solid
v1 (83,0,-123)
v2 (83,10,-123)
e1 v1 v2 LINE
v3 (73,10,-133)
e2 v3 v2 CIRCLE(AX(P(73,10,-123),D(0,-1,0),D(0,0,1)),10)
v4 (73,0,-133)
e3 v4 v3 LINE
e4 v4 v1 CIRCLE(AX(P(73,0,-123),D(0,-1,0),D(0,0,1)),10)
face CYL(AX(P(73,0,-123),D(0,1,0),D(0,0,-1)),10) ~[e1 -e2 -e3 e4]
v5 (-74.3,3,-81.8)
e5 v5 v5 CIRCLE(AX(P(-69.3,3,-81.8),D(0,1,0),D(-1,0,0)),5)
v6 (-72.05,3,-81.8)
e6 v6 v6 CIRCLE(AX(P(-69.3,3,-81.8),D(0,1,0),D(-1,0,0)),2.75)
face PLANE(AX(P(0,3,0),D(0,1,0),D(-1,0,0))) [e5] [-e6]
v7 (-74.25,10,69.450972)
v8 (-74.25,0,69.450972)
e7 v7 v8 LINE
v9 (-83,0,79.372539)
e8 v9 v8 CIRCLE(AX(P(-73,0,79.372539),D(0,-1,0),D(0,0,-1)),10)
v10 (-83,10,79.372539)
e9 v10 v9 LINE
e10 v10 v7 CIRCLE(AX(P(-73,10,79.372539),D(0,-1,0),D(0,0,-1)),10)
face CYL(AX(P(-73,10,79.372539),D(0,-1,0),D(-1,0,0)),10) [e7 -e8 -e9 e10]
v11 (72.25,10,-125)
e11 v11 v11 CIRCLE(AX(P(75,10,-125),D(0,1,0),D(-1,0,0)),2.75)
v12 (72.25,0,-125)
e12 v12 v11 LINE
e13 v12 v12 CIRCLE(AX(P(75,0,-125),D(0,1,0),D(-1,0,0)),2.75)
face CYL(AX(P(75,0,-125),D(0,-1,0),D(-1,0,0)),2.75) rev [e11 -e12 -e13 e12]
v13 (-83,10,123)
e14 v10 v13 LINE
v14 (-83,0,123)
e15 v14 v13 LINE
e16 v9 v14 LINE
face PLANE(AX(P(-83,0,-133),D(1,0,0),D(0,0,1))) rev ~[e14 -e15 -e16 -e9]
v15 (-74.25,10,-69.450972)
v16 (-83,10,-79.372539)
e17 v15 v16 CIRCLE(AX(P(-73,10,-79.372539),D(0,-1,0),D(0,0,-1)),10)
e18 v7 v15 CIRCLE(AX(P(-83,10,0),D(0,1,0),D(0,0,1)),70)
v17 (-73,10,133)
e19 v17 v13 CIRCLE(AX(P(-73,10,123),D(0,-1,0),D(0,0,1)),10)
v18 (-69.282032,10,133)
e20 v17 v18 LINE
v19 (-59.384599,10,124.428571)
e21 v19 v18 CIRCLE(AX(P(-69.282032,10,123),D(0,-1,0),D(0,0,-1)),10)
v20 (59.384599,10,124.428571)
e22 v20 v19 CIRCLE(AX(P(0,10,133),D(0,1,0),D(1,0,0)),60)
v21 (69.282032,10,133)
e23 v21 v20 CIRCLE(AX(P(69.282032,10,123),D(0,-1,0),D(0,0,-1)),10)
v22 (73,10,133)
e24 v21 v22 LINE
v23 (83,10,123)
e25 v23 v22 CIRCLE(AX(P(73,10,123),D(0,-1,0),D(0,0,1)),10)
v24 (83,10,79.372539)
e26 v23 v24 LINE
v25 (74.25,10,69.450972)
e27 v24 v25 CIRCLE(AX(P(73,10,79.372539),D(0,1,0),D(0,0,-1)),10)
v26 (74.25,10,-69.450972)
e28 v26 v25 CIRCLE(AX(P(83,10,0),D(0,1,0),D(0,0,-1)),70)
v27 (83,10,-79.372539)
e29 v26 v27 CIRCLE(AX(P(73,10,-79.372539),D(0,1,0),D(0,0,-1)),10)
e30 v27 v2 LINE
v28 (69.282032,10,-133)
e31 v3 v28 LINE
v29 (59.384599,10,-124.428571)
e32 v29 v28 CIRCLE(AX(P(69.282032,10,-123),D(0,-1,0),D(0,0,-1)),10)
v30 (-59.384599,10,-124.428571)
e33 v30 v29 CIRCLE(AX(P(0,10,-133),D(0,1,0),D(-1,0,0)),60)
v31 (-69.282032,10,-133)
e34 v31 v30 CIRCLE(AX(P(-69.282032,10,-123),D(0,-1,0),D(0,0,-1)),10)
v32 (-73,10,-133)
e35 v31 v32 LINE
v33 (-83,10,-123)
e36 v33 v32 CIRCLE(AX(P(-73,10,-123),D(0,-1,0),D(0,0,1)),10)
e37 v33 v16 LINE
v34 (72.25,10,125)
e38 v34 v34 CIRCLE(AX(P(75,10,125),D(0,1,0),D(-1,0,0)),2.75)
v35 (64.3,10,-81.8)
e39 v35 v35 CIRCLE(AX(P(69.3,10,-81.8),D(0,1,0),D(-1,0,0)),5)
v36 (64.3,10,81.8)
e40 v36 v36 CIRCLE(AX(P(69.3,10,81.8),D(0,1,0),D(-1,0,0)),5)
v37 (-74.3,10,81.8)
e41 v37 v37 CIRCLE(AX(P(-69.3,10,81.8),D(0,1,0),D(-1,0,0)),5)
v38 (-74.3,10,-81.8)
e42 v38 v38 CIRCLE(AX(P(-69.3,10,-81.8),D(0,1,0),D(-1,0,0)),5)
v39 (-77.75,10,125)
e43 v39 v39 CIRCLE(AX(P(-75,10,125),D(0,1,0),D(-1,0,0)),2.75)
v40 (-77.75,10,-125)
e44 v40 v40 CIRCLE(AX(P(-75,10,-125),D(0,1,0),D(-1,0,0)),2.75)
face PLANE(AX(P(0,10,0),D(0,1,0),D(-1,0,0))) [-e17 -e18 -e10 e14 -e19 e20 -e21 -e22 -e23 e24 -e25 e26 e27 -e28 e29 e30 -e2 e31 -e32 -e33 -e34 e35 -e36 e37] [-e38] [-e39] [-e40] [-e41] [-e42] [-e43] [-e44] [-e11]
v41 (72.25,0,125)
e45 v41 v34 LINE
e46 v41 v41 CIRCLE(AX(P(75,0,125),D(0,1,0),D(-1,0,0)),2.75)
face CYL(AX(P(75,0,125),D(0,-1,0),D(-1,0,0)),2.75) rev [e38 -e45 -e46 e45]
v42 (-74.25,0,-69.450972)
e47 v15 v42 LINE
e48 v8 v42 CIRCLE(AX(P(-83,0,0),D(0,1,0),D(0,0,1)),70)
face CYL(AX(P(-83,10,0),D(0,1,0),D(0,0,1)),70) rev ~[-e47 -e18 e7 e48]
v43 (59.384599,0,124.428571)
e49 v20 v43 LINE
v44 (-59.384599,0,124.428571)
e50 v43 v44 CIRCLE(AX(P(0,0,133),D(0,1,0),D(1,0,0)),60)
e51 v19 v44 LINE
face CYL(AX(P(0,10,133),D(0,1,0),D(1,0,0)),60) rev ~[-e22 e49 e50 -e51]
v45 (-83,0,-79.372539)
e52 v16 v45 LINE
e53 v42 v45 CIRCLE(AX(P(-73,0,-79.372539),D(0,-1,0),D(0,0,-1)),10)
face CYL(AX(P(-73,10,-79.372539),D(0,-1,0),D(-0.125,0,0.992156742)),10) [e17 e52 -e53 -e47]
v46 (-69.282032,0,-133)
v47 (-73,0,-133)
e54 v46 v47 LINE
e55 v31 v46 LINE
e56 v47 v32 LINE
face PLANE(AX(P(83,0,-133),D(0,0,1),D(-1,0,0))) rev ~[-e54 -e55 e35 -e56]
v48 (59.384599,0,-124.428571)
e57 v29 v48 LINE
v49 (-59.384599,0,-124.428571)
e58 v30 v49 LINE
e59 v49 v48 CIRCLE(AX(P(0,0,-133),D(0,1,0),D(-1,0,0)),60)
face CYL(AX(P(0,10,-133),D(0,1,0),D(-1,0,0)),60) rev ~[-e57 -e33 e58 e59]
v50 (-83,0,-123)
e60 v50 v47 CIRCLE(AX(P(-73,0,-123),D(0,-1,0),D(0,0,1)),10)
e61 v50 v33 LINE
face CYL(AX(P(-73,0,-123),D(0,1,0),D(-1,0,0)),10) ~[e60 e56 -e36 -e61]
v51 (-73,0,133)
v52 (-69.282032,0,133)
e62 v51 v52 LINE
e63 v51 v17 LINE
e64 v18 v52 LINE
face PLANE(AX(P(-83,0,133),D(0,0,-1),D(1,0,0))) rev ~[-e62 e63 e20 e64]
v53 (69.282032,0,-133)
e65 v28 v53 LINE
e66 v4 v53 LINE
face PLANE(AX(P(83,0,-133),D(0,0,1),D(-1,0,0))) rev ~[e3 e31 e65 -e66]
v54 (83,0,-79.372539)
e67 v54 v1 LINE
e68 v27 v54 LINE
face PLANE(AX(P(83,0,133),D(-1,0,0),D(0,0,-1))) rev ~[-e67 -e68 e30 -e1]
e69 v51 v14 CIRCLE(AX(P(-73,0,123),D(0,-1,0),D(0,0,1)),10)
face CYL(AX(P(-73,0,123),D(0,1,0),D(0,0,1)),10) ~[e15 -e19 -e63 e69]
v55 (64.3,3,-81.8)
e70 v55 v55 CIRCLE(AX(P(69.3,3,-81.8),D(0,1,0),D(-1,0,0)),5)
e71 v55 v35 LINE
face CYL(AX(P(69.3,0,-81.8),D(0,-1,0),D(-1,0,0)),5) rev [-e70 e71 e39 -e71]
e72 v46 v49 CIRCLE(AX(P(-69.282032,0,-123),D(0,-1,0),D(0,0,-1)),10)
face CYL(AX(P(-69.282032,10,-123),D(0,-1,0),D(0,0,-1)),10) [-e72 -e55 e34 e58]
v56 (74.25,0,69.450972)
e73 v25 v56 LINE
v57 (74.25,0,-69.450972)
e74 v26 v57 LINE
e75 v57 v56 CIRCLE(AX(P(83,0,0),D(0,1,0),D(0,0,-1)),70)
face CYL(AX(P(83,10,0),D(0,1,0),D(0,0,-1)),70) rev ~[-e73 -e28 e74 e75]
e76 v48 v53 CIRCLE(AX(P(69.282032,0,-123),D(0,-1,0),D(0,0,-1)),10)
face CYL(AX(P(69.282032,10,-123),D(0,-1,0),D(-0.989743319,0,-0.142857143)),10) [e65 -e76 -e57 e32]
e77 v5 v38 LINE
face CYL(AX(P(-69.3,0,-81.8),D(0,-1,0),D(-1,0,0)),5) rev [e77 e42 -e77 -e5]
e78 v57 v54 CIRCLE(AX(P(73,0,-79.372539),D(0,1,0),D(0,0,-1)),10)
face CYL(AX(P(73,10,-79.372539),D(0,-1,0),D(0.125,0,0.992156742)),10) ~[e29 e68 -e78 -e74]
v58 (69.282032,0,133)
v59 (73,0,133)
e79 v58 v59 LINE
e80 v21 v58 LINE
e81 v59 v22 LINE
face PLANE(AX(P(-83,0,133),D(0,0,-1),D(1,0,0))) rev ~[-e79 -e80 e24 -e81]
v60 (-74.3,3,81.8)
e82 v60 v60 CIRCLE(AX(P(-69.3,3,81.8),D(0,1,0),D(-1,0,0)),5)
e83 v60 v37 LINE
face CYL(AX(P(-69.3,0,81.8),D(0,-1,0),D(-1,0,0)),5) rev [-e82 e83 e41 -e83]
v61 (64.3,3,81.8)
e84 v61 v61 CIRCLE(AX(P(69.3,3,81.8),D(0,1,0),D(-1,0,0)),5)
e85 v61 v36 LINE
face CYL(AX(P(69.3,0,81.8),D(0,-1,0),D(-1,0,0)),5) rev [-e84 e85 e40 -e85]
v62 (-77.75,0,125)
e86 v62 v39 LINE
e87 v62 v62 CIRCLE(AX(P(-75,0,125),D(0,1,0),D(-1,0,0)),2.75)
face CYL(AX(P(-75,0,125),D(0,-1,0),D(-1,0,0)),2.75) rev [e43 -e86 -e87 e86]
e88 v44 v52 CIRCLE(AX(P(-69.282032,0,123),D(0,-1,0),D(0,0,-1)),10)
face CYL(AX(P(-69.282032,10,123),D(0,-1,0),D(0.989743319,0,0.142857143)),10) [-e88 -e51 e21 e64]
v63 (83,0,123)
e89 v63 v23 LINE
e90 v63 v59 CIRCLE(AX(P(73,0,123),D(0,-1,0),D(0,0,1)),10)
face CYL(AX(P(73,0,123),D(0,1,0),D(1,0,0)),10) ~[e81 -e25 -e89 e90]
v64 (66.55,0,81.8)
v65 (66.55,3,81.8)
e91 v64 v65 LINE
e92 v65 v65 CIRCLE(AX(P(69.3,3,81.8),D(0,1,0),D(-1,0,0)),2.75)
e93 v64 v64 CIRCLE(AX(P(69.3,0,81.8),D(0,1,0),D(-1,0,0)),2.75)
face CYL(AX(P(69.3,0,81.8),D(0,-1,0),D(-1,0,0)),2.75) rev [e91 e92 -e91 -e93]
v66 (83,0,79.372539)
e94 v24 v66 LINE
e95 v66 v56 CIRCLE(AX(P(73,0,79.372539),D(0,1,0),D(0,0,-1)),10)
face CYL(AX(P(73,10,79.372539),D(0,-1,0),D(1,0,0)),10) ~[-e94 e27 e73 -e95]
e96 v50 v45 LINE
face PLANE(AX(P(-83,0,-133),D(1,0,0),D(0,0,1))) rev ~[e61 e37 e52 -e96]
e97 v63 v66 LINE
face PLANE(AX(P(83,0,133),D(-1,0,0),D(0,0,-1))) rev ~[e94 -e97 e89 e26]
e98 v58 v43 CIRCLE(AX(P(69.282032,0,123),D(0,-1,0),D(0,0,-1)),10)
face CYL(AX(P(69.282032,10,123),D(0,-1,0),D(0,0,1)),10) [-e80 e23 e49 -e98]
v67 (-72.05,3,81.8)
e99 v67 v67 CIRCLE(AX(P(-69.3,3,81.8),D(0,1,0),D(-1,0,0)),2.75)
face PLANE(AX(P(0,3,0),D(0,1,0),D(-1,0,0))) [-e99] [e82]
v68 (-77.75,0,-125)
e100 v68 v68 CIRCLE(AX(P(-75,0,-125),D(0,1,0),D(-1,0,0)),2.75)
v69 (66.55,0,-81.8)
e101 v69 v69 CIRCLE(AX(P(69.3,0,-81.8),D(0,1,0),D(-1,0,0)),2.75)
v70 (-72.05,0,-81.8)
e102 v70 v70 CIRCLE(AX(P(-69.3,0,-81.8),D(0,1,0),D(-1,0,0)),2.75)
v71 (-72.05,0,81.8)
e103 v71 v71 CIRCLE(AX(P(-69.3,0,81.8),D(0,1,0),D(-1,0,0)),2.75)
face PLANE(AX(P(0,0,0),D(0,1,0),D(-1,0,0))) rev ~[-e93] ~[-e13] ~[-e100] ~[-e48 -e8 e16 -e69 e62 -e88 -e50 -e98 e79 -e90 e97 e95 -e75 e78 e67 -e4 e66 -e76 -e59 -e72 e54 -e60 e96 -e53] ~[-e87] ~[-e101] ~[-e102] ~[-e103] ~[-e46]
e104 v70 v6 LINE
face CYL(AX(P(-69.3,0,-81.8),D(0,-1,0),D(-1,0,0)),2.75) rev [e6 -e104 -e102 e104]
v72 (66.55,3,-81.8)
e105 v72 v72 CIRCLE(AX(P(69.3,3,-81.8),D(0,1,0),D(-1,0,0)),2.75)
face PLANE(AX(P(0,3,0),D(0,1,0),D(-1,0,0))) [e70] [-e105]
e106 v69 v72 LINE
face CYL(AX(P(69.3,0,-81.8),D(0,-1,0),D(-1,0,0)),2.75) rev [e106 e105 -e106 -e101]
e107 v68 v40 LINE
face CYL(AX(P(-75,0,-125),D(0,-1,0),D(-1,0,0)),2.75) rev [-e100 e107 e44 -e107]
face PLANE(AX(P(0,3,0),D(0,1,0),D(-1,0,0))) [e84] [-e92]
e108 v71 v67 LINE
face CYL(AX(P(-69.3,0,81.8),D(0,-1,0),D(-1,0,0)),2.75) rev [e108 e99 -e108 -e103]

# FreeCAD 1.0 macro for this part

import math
import FreeCAD as App
import Part
import Sketcher

V = App.Vector
Q = App.Units.Quantity


def edges_at(feature, points):
    """Names of the edges that pass closest to the given points."""
    edges = feature.Shape.Edges
    near = lambda p: min(range(len(edges)), key=lambda i: edges[i].distToShape(Part.Vertex(*p))[0])
    return sorted({f"Edge{near(p) + 1}" for p in points})

doc = App.newDocument("Part")
body = doc.addObject("PartDesign::Body", "Body")

# Sketch on XZ plane
sketch1 = body.newObject("Sketcher::SketchObject", "Sketch")
sketch1.AttachmentSupport = (doc.getObject("XZ_Plane"), [""])
sketch1.MapMode = "FlatFace"
sketch1.addGeometry([
    Part.LineSegment(V(83, 133, 0), V(83, -133, 0)),  # 0
    Part.LineSegment(V(83, -133, 0), V(-83, -133, 0)),  # 1
    Part.LineSegment(V(-83, -133, 0), V(-83, 133, 0)),  # 2
    Part.LineSegment(V(-83, 133, 0), V(83, 133, 0)),  # 3
    Part.Circle(V(75, -125, 0), V(0, 0, 1), 2.75),  # 4
    Part.Circle(V(69.3, -81.8, 0), V(0, 0, 1), 5),  # 5
    Part.Circle(V(-75, -125, 0), V(0, 0, 1), 2.75),  # 6
    Part.Circle(V(-69.3, -81.8, 0), V(0, 0, 1), 5),  # 7
    Part.Circle(V(69.3, 81.8, 0), V(0, 0, 1), 5),  # 8
    Part.Circle(V(75, 125, 0), V(0, 0, 1), 2.75),  # 9
    Part.Circle(V(-69.3, 81.8, 0), V(0, 0, 1), 5),  # 10
    Part.Circle(V(-75, 125, 0), V(0, 0, 1), 2.75),  # 11
], False)
sketch1.addConstraint([
    Sketcher.Constraint("Coincident", 0, 2, 1, 1),
    Sketcher.Constraint("Coincident", 1, 2, 2, 1),
    Sketcher.Constraint("Coincident", 2, 2, 3, 1),
    Sketcher.Constraint("Coincident", 3, 2, 0, 1),
    Sketcher.Constraint("Vertical", 0),
    Sketcher.Constraint("Horizontal", 1),
    Sketcher.Constraint("Vertical", 2),
    Sketcher.Constraint("Horizontal", 3),
    Sketcher.Constraint("Equal", 4, 6),
    Sketcher.Constraint("Equal", 5, 7),
    Sketcher.Constraint("Equal", 7, 8),
    Sketcher.Constraint("Equal", 6, 9),
    Sketcher.Constraint("Equal", 8, 10),
    Sketcher.Constraint("Equal", 9, 11),
    Sketcher.Constraint("Symmetric", 7, 3, 8, 3, -1, 1),
    Sketcher.Constraint("Symmetric", 6, 3, 9, 3, -1, 1),
    Sketcher.Constraint("Symmetric", 5, 3, 10, 3, -1, 1),
    Sketcher.Constraint("Symmetric", 4, 3, 11, 3, -1, 1),
    Sketcher.Constraint("Symmetric", 0, 2, 2, 2, -1, 1),
    Sketcher.Constraint("Symmetric", 4, 3, 6, 3, -2),
    Sketcher.Constraint("Symmetric", 5, 3, 7, 3, -2),
    Sketcher.Constraint("Diameter", 5, Q("10 mm")),
    Sketcher.Constraint("Diameter", 4, Q("5.5 mm")),
    Sketcher.Constraint("DistanceX", 6, 3, 4, 3, Q("150 mm")),
    Sketcher.Constraint("DistanceY", 4, 3, 9, 3, Q("250 mm")),
    Sketcher.Constraint("DistanceX", 4, 3, 0, 2, Q("8 mm")),
    Sketcher.Constraint("DistanceY", 0, 2, 4, 3, Q("8 mm")),
    Sketcher.Constraint("DistanceX", -1, 1, 5, 3, Q("69.3 mm")),
    Sketcher.Constraint("DistanceY", 5, 3, 8, 3, Q("163.6 mm")),
])
pad1 = body.newObject("PartDesign::Pad", "Pad")
pad1.Profile = sketch1
pad1.Length = 10
pad1.Reversed = True

# Sketch on XZ plane
sketch2 = body.newObject("Sketcher::SketchObject", "Sketch001")
sketch2.AttachmentSupport = (doc.getObject("XZ_Plane"), [""])
sketch2.MapMode = "FlatFace"
sketch2.addGeometry([
    Part.Circle(V(-69.3, 81.8, 0), V(0, 0, 1), 5),  # 0
    Part.Circle(V(-69.3, 81.8, 0), V(0, 0, 1), 2.75),  # 1
    Part.Circle(V(69.3, 81.8, 0), V(0, 0, 1), 5),  # 2
    Part.Circle(V(69.3, 81.8, 0), V(0, 0, 1), 2.75),  # 3
    Part.Circle(V(69.3, -81.8, 0), V(0, 0, 1), 5),  # 4
    Part.Circle(V(69.3, -81.8, 0), V(0, 0, 1), 2.75),  # 5
    Part.Circle(V(-69.3, -81.8, 0), V(0, 0, 1), 5),  # 6
    Part.Circle(V(-69.3, -81.8, 0), V(0, 0, 1), 2.75),  # 7
], False)
sketch2.addConstraint([
    Sketcher.Constraint("Coincident", 1, 3, 0, 3),
    Sketcher.Constraint("Coincident", 3, 3, 2, 3),
    Sketcher.Constraint("Coincident", 5, 3, 4, 3),
    Sketcher.Constraint("Coincident", 7, 3, 6, 3),
    Sketcher.Constraint("Equal", 0, 2),
    Sketcher.Constraint("Equal", 1, 3),
    Sketcher.Constraint("Equal", 2, 4),
    Sketcher.Constraint("Equal", 3, 5),
    Sketcher.Constraint("Equal", 4, 6),
    Sketcher.Constraint("Equal", 5, 7),
    Sketcher.Constraint("Symmetric", 0, 3, 4, 3, -1, 1),
    Sketcher.Constraint("Symmetric", 2, 3, 6, 3, -1, 1),
    Sketcher.Constraint("Symmetric", 0, 3, 2, 3, -2),
    Sketcher.Constraint("Diameter", 0, Q("10 mm")),
    Sketcher.Constraint("Diameter", 1, Q("5.5 mm")),
    Sketcher.Constraint("DistanceX", 0, 3, -1, 1, Q("69.3 mm")),
    Sketcher.Constraint("DistanceY", 4, 3, 2, 3, Q("163.6 mm")),
])
pad2 = body.newObject("PartDesign::Pad", "Pad001")
pad2.Profile = sketch2
pad2.Length = 3
pad2.Reversed = True

# Sketch on XZ plane
sketch3 = body.newObject("Sketcher::SketchObject", "Sketch002")
sketch3.AttachmentSupport = (doc.getObject("XZ_Plane"), [""])
sketch3.MapMode = "FlatFace"
sketch3.AttachmentOffset = App.Placement(V(0, 0, -10), App.Rotation())
sketch3.addGeometry([
    Part.ArcOfCircle(Part.Circle(V(-83, 0, 0), V(0, 0, 1), 70), math.radians(-90), math.radians(90)),  # 0
    Part.LineSegment(V(-83, -70, 0), V(-83, 70, 0)),  # 1
    Part.LineSegment(V(60, -133, 0), V(-60, -133, 0)),  # 2
    Part.ArcOfCircle(Part.Circle(V(0, -133, 0), V(0, 0, 1), 60), math.radians(0), math.radians(180)),  # 3
    Part.ArcOfCircle(Part.Circle(V(0, 133, 0), V(0, 0, 1), 60), math.radians(180), math.radians(360)),  # 4
    Part.LineSegment(V(-60, 133, 0), V(60, 133, 0)),  # 5
    Part.LineSegment(V(83, 70, 0), V(83, -70, 0)),  # 6
    Part.ArcOfCircle(Part.Circle(V(83, 0, 0), V(0, 0, 1), 70), math.radians(90), math.radians(270)),  # 7
], False)
sketch3.addConstraint([
    Sketcher.Constraint("Coincident", 0, 1, 1, 1),
    Sketcher.Constraint("Coincident", 1, 2, 0, 2),
    Sketcher.Constraint("Coincident", 2, 1, 3, 1),
    Sketcher.Constraint("Coincident", 3, 2, 2, 2),
    Sketcher.Constraint("Coincident", 4, 1, 5, 1),
    Sketcher.Constraint("Coincident", 5, 2, 4, 2),
    Sketcher.Constraint("Coincident", 6, 1, 7, 1),
    Sketcher.Constraint("Coincident", 7, 2, 6, 2),
    Sketcher.Constraint("Vertical", 1),
    Sketcher.Constraint("Horizontal", 2),
    Sketcher.Constraint("Horizontal", 5),
    Sketcher.Constraint("Vertical", 6),
    Sketcher.Constraint("Equal", 3, 4),
    Sketcher.Constraint("Equal", 0, 7),
    Sketcher.Constraint("Symmetric", 3, 3, 4, 3, -1, 1),
    Sketcher.Constraint("Symmetric", 0, 3, 7, 3, -1, 1),
    Sketcher.Constraint("Symmetric", 1, 2, 6, 1, -2),
    Sketcher.Constraint("Symmetric", 3, 2, 4, 1, -1),
    Sketcher.Constraint("Horizontal", 3, 3, 2, 1),
    Sketcher.Constraint("Vertical", 7, 3, 6, 1),
    Sketcher.Constraint("Radius", 0, Q("70 mm")),
    Sketcher.Constraint("Radius", 3, Q("60 mm")),
    Sketcher.Constraint("DistanceX", 0, 3, -1, 1, Q("83 mm")),
    Sketcher.Constraint("DistanceY", 3, 3, -1, 1, Q("133 mm")),
])
pocket1 = body.newObject("PartDesign::Pocket", "Pocket")
pocket1.Profile = sketch3
pocket1.Type = "ThroughAll"
pocket1.Reversed = True
doc.recompute()

fillet = body.newObject("PartDesign::Fillet", "Fillet")
fillet.Base = (pocket1, edges_at(pocket1, [
    (60, 5, 133),
    (-60, 5, 133),
    (83, 5, 133),
    (83, 5, -70),
    (83, 5, 70),
    (-83, 5, 133),
    (-83, 5, 70),
    (-83, 5, -70),
    (-83, 5, -133),
    (60, 5, -133),
    (-60, 5, -133),
    (83, 5, -133),
]))
fillet.Radius = 10

doc.recompute()
